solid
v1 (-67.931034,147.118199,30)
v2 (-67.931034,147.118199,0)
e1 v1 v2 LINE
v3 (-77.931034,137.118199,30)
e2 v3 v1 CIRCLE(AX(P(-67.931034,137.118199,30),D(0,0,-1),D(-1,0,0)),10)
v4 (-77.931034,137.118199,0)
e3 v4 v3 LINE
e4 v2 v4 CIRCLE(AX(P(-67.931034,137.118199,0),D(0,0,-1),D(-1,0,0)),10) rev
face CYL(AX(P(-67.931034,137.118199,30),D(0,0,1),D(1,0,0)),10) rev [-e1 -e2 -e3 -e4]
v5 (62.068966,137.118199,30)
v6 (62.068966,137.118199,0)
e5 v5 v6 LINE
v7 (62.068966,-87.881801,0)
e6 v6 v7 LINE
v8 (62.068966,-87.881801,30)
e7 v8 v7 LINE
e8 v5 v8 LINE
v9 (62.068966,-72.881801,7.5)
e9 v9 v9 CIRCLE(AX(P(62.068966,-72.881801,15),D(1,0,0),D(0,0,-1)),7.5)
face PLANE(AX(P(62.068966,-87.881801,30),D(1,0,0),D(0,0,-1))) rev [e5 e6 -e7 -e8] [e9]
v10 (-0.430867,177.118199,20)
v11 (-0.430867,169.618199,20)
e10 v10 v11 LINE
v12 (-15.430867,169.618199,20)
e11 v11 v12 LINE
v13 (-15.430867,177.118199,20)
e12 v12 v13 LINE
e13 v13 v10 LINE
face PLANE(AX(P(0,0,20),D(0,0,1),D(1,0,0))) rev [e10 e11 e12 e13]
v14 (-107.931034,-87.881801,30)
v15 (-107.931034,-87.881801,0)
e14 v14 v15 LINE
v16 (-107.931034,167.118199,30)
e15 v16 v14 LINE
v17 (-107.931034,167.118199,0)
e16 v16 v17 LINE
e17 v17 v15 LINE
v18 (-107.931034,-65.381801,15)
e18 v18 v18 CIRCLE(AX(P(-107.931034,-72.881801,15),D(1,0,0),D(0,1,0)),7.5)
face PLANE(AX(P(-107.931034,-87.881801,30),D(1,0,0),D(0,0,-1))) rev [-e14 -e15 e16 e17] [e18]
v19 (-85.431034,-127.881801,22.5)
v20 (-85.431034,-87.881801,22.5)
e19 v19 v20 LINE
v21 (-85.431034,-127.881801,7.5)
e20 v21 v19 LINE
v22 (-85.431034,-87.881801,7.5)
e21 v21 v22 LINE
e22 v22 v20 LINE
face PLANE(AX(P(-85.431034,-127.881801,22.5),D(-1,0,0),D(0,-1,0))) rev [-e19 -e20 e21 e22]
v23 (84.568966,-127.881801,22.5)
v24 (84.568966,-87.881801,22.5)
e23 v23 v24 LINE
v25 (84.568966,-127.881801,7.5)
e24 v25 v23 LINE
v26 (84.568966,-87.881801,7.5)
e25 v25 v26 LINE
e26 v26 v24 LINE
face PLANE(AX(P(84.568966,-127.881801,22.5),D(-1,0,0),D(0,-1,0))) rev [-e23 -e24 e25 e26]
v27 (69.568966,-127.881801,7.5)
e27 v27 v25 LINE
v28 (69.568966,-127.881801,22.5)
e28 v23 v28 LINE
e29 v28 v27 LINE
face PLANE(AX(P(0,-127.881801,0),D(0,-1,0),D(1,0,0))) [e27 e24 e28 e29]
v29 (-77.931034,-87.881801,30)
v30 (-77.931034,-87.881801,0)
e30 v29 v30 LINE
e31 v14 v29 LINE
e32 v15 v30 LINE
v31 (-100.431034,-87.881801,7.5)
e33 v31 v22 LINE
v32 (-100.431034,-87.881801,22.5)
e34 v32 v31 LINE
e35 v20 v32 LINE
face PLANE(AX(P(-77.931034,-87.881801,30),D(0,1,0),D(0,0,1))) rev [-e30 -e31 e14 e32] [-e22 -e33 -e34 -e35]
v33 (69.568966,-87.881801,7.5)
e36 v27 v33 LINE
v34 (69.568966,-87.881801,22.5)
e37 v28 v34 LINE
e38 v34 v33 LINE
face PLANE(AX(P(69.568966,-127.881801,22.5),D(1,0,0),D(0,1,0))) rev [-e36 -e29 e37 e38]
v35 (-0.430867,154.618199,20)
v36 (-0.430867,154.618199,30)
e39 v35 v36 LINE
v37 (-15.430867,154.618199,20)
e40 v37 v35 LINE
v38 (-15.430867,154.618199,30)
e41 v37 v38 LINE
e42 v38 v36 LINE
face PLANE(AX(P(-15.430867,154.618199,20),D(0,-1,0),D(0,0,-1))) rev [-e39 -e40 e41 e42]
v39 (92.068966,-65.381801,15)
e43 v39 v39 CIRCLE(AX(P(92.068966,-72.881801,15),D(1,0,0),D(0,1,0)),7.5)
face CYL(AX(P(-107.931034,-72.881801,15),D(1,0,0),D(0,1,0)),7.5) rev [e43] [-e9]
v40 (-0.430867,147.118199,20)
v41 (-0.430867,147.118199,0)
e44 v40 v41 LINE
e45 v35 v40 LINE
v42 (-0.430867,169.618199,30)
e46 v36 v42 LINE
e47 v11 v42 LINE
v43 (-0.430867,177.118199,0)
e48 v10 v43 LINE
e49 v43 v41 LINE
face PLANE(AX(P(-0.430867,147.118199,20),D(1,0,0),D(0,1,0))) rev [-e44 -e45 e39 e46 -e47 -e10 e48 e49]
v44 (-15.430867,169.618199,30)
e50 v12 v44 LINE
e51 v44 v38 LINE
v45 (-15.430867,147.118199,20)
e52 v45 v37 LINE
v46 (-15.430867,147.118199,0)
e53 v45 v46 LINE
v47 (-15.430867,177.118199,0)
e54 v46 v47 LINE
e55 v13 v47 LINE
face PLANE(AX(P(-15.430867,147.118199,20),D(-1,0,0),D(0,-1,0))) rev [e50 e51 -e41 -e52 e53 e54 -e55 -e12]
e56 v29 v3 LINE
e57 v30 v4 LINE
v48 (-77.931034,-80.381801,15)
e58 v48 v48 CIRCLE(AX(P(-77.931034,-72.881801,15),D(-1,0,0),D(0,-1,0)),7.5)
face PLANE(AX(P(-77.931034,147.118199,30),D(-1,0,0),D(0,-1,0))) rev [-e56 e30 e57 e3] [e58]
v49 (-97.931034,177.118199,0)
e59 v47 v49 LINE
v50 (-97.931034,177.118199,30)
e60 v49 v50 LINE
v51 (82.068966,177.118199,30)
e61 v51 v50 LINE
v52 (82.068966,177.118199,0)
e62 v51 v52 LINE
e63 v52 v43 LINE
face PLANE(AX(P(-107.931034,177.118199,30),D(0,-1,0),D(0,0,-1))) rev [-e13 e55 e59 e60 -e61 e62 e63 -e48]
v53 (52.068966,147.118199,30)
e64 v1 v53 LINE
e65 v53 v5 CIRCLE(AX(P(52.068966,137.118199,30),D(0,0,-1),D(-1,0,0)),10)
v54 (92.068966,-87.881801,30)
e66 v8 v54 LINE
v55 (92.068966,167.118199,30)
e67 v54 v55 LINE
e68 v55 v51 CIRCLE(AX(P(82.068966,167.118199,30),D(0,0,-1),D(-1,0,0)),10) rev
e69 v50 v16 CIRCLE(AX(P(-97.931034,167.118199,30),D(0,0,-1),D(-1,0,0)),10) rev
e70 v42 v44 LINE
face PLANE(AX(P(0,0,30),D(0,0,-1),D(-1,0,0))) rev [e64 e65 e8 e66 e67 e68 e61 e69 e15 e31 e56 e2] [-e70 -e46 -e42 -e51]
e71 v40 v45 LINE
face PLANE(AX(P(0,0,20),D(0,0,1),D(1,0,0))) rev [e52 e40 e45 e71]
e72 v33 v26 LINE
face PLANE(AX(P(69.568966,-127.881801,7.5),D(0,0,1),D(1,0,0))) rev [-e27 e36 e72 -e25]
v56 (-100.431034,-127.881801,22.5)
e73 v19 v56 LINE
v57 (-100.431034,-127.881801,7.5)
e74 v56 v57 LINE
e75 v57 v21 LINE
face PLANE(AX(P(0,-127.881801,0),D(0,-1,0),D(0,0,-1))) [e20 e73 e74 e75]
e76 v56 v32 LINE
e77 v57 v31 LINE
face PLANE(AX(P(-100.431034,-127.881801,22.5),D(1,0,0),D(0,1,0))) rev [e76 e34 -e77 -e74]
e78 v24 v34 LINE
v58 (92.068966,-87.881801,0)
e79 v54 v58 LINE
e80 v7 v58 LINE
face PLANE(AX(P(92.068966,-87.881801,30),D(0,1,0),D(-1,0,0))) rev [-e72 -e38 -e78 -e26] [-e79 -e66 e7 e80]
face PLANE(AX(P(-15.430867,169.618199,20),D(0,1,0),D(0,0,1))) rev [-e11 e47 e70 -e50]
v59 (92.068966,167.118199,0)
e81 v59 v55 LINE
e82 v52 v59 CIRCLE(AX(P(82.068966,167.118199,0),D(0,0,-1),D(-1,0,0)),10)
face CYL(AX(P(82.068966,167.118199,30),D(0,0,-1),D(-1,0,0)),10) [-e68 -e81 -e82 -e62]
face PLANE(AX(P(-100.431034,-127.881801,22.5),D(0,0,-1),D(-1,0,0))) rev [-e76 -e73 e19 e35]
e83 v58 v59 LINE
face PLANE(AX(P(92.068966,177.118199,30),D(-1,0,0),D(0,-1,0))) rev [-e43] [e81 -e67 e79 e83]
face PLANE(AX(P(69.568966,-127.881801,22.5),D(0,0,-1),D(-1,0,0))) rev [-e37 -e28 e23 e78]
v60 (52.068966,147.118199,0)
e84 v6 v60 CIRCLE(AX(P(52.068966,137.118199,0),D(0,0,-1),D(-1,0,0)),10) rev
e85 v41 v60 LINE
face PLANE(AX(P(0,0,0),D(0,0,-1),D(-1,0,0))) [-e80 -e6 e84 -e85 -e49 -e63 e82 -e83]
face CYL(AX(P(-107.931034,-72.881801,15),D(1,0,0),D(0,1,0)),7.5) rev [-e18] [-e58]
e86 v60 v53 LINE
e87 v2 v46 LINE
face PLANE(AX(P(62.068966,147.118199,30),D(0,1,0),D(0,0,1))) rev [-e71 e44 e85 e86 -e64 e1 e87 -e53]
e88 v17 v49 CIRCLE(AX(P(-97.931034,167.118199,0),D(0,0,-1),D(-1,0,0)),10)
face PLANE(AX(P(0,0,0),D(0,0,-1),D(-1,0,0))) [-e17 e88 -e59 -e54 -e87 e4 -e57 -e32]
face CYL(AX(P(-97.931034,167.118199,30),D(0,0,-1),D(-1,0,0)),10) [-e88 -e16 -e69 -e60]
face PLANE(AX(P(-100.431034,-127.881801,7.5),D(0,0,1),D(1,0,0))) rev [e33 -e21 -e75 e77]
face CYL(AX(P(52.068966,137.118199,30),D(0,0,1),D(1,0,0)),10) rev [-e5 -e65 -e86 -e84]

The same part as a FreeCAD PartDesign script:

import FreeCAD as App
import Part
import Sketcher

V = App.Vector


def edges_at(feature, points):
    """Names of the edges that pass closest to the given points."""
    edges = feature.Shape.Edges
    near = lambda p: min(range(len(edges)), key=lambda i: edges[i].distToShape(Part.Vertex(*p))[0])
    return sorted({f"Edge{near(p) + 1}" for p in points})

doc = App.newDocument("Part")
body = doc.addObject("PartDesign::Body", "Body")

# Sketch on XY plane
sketch1 = body.newObject("Sketcher::SketchObject", "Sketch")
sketch1.AttachmentSupport = (doc.getObject("XY_Plane"), [""])
sketch1.MapMode = "FlatFace"
sketch1.addGeometry([
    Part.LineSegment(V(-107.931034, -87.881801, 0), V(-77.931034, -87.881801, 0)),  # 0
    Part.LineSegment(V(-77.931034, -87.881801, 0), V(-77.931034, 147.118199, 0)),  # 1
    Part.LineSegment(V(-77.931034, 147.118199, 0), V(62.068966, 147.118199, 0)),  # 2
    Part.LineSegment(V(62.068966, 147.118199, 0), V(62.068966, -87.881801, 0)),  # 3
    Part.LineSegment(V(62.068966, -87.881801, 0), V(92.068966, -87.881801, 0)),  # 4
    Part.LineSegment(V(92.068966, -87.881801, 0), V(92.068966, 177.118199, 0)),  # 5
    Part.LineSegment(V(92.068966, 177.118199, 0), V(-107.931034, 177.118199, 0)),  # 6
    Part.LineSegment(V(-107.931034, 177.118199, 0), V(-107.931034, -87.881801, 0)),  # 7
], False)
sketch1.addConstraint([
    Sketcher.Constraint("Coincident", 0, 2, 1, 1),
    Sketcher.Constraint("Coincident", 1, 2, 2, 1),
    Sketcher.Constraint("Coincident", 2, 2, 3, 1),
    Sketcher.Constraint("Coincident", 3, 2, 4, 1),
    Sketcher.Constraint("Coincident", 4, 2, 5, 1),
    Sketcher.Constraint("Coincident", 5, 2, 6, 1),
    Sketcher.Constraint("Coincident", 6, 2, 7, 1),
    Sketcher.Constraint("Coincident", 7, 2, 0, 1),
    Sketcher.Constraint("Horizontal", 0),
    Sketcher.Constraint("Vertical", 1),
    Sketcher.Constraint("Horizontal", 2),
    Sketcher.Constraint("Vertical", 3),
    Sketcher.Constraint("Horizontal", 4),
    Sketcher.Constraint("Vertical", 5),
    Sketcher.Constraint("Horizontal", 6),
    Sketcher.Constraint("Vertical", 7),
    Sketcher.Constraint("Horizontal", 0, 2, 3, 2),
    Sketcher.Constraint("Equal", 0, 4),
    Sketcher.Constraint("DistanceX", 0, 1, 0, 2, 30.0),
    Sketcher.Constraint("DistanceX", 2, 1, 2, 2, 140.0),
    Sketcher.Constraint("DistanceY", 1, 1, 1, 2, 235.0),
    Sketcher.Constraint("DistanceY", 5, 1, 5, 2, 265.0),
    Sketcher.Constraint("DistanceY", 0, 2, -1, 1, 87.881801),
    Sketcher.Constraint("DistanceX", 0, 2, -1, 1, 77.931034),
])
pad1 = body.newObject("PartDesign::Pad", "Pad")
pad1.Profile = sketch1
pad1.Length = 30

# Sketch on XZ plane
sketch2 = body.newObject("Sketcher::SketchObject", "Sketch001")
sketch2.AttachmentSupport = (doc.getObject("XZ_Plane"), [""])
sketch2.MapMode = "FlatFace"
sketch2.AttachmentOffset = App.Placement(V(0, 0, 87.881801), App.Rotation())
sketch2.addGeometry([
    Part.LineSegment(V(69.568966, 22.5, 0), V(69.568966, 7.5, 0)),  # 0
    Part.LineSegment(V(69.568966, 7.5, 0), V(84.568966, 7.5, 0)),  # 1
    Part.LineSegment(V(84.568966, 7.5, 0), V(84.568966, 22.5, 0)),  # 2
    Part.LineSegment(V(84.568966, 22.5, 0), V(69.568966, 22.5, 0)),  # 3
    Part.LineSegment(V(-100.431034, 22.5, 0), V(-100.431034, 7.5, 0)),  # 4
    Part.LineSegment(V(-100.431034, 7.5, 0), V(-85.431034, 7.5, 0)),  # 5
    Part.LineSegment(V(-85.431034, 7.5, 0), V(-85.431034, 22.5, 0)),  # 6
    Part.LineSegment(V(-85.431034, 22.5, 0), V(-100.431034, 22.5, 0)),  # 7
], False)
sketch2.addConstraint([
    Sketcher.Constraint("Coincident", 0, 2, 1, 1),
    Sketcher.Constraint("Coincident", 1, 2, 2, 1),
    Sketcher.Constraint("Coincident", 2, 2, 3, 1),
    Sketcher.Constraint("Coincident", 3, 2, 0, 1),
    Sketcher.Constraint("Coincident", 4, 2, 5, 1),
    Sketcher.Constraint("Coincident", 5, 2, 6, 1),
    Sketcher.Constraint("Coincident", 6, 2, 7, 1),
    Sketcher.Constraint("Coincident", 7, 2, 4, 1),
    Sketcher.Constraint("Vertical", 0),
    Sketcher.Constraint("Horizontal", 1),
    Sketcher.Constraint("Vertical", 2),
    Sketcher.Constraint("Horizontal", 3),
    Sketcher.Constraint("Vertical", 4),
    Sketcher.Constraint("Horizontal", 5),
    Sketcher.Constraint("Vertical", 6),
    Sketcher.Constraint("Horizontal", 7),
    Sketcher.Constraint("Horizontal", 1, 2, 4, 2),
    Sketcher.Constraint("Horizontal", 3, 2, 6, 2),
    Sketcher.Constraint("Equal", 3, 5),
    Sketcher.Constraint("Equal", 7, 0),
    Sketcher.Constraint("DistanceX", 1, 1, 1, 2, 15.0),
    Sketcher.Constraint("DistanceX", 4, 2, 0, 2, 170.0),
    Sketcher.Constraint("DistanceY", -1, 1, 0, 2, 7.5),
    Sketcher.Constraint("DistanceX", -1, 1, 0, 2, 69.568966),
])
pad2 = body.newObject("PartDesign::Pad", "Pad001")
pad2.Profile = sketch2
pad2.Length = 40
doc.recompute()

fillet = body.newObject("PartDesign::Fillet", "Fillet")
fillet.Base = (pad2, edges_at(pad2, [(62.069, 147.118, 15), (-77.931, 147.118, 15)]))
fillet.Radius = 10
doc.recompute()

fillet2 = body.newObject("PartDesign::Fillet", "Fillet001")
fillet2.Base = (fillet, edges_at(fillet, [(-107.931, 177.118, 15), (92.069, 177.118, 15)]))
fillet2.Radius = 10

# Sketch on YZ plane
sketch3 = body.newObject("Sketcher::SketchObject", "Sketch002")
sketch3.AttachmentSupport = (doc.getObject("YZ_Plane"), [""])
sketch3.MapMode = "FlatFace"
sketch3.AttachmentOffset = App.Placement(V(0, 0, -77.931034), App.Rotation())
sketch3.addGeometry(Part.Circle(V(-72.881801, 15, 0), V(0, 0, 1), 7.5), False)
sketch3.addConstraint([
    Sketcher.Constraint("Diameter", 0, 15.0),
    Sketcher.Constraint("DistanceY", -1, 1, 0, 3, 15.0),
    Sketcher.Constraint("DistanceX", 0, 3, -1, 1, 72.881801),
])
pocket1 = body.newObject("PartDesign::Pocket", "Pocket")
pocket1.Profile = sketch3
pocket1.Type = "ThroughAll"
pocket1.Midplane = True

# Sketch on XY plane
sketch4 = body.newObject("Sketcher::SketchObject", "Sketch003")
sketch4.AttachmentSupport = (doc.getObject("XY_Plane"), [""])
sketch4.MapMode = "FlatFace"
sketch4.addGeometry([
    Part.LineSegment(V(-0.430867, 177.118199, 0), V(-0.430867, 147.118199, 0)),
    Part.LineSegment(V(-0.430867, 147.118199, 0), V(-15.430867, 147.118199, 0)),
    Part.LineSegment(V(-15.430867, 147.118199, 0), V(-15.430867, 177.118199, 0)),
    Part.LineSegment(V(-15.430867, 177.118199, 0), V(-0.430867, 177.118199, 0)),
], False)
sketch4.addConstraint([
    Sketcher.Constraint("Coincident", 0, 2, 1, 1),
    Sketcher.Constraint("Coincident", 1, 2, 2, 1),
    Sketcher.Constraint("Coincident", 2, 2, 3, 1),
    Sketcher.Constraint("Coincident", 3, 2, 0, 1),
    Sketcher.Constraint("Vertical", 0),
    Sketcher.Constraint("Horizontal", 1),
    Sketcher.Constraint("Vertical", 2),
    Sketcher.Constraint("Horizontal", 3),
    Sketcher.Constraint("DistanceX", 1, 2, 1, 1, 15.0),
    Sketcher.Constraint("DistanceY", 0, 2, 0, 1, 30.0),
    Sketcher.Constraint("DistanceY", -1, 1, 0, 2, 147.118199),
    Sketcher.Constraint("DistanceX", 0, 2, -1, 1, 0.430867),
])
pocket2 = body.newObject("PartDesign::Pocket", "Pocket001")
pocket2.Profile = sketch4
pocket2.Length = 20
pocket2.Reversed = True

# Sketch on XY plane
sketch5 = body.newObject("Sketcher::SketchObject", "Sketch004")
sketch5.AttachmentSupport = (doc.getObject("XY_Plane"), [""])
sketch5.MapMode = "FlatFace"
sketch5.AttachmentOffset = App.Placement(V(0, 0, 30), App.Rotation())
sketch5.addGeometry([
    Part.LineSegment(V(-15.430867, 169.618199, 0), V(-15.430867, 154.618199, 0)),
    Part.LineSegment(V(-15.430867, 154.618199, 0), V(-0.430867, 154.618199, 0)),
    Part.LineSegment(V(-0.430867, 154.618199, 0), V(-0.430867, 169.618199, 0)),
    Part.LineSegment(V(-0.430867, 169.618199, 0), V(-15.430867, 169.618199, 0)),
], False)
sketch5.addConstraint([
    Sketcher.Constraint("Coincident", 0, 2, 1, 1),
    Sketcher.Constraint("Coincident", 1, 2, 2, 1),
    Sketcher.Constraint("Coincident", 2, 2, 3, 1),
    Sketcher.Constraint("Coincident", 3, 2, 0, 1),
    Sketcher.Constraint("Vertical", 0),
    Sketcher.Constraint("Horizontal", 1),
    Sketcher.Constraint("Vertical", 2),
    Sketcher.Constraint("Horizontal", 3),
    Sketcher.Constraint("Equal", 3, 0),
    Sketcher.Constraint("DistanceX", 1, 1, 1, 2, 15.0),
    Sketcher.Constraint("DistanceY", -1, 1, 0, 2, 154.618199),
    Sketcher.Constraint("DistanceX", 0, 2, -1, 1, 15.430867),
])
pocket3 = body.newObject("PartDesign::Pocket", "Pocket002")
pocket3.Profile = sketch5
pocket3.Length = 10

doc.recompute()
